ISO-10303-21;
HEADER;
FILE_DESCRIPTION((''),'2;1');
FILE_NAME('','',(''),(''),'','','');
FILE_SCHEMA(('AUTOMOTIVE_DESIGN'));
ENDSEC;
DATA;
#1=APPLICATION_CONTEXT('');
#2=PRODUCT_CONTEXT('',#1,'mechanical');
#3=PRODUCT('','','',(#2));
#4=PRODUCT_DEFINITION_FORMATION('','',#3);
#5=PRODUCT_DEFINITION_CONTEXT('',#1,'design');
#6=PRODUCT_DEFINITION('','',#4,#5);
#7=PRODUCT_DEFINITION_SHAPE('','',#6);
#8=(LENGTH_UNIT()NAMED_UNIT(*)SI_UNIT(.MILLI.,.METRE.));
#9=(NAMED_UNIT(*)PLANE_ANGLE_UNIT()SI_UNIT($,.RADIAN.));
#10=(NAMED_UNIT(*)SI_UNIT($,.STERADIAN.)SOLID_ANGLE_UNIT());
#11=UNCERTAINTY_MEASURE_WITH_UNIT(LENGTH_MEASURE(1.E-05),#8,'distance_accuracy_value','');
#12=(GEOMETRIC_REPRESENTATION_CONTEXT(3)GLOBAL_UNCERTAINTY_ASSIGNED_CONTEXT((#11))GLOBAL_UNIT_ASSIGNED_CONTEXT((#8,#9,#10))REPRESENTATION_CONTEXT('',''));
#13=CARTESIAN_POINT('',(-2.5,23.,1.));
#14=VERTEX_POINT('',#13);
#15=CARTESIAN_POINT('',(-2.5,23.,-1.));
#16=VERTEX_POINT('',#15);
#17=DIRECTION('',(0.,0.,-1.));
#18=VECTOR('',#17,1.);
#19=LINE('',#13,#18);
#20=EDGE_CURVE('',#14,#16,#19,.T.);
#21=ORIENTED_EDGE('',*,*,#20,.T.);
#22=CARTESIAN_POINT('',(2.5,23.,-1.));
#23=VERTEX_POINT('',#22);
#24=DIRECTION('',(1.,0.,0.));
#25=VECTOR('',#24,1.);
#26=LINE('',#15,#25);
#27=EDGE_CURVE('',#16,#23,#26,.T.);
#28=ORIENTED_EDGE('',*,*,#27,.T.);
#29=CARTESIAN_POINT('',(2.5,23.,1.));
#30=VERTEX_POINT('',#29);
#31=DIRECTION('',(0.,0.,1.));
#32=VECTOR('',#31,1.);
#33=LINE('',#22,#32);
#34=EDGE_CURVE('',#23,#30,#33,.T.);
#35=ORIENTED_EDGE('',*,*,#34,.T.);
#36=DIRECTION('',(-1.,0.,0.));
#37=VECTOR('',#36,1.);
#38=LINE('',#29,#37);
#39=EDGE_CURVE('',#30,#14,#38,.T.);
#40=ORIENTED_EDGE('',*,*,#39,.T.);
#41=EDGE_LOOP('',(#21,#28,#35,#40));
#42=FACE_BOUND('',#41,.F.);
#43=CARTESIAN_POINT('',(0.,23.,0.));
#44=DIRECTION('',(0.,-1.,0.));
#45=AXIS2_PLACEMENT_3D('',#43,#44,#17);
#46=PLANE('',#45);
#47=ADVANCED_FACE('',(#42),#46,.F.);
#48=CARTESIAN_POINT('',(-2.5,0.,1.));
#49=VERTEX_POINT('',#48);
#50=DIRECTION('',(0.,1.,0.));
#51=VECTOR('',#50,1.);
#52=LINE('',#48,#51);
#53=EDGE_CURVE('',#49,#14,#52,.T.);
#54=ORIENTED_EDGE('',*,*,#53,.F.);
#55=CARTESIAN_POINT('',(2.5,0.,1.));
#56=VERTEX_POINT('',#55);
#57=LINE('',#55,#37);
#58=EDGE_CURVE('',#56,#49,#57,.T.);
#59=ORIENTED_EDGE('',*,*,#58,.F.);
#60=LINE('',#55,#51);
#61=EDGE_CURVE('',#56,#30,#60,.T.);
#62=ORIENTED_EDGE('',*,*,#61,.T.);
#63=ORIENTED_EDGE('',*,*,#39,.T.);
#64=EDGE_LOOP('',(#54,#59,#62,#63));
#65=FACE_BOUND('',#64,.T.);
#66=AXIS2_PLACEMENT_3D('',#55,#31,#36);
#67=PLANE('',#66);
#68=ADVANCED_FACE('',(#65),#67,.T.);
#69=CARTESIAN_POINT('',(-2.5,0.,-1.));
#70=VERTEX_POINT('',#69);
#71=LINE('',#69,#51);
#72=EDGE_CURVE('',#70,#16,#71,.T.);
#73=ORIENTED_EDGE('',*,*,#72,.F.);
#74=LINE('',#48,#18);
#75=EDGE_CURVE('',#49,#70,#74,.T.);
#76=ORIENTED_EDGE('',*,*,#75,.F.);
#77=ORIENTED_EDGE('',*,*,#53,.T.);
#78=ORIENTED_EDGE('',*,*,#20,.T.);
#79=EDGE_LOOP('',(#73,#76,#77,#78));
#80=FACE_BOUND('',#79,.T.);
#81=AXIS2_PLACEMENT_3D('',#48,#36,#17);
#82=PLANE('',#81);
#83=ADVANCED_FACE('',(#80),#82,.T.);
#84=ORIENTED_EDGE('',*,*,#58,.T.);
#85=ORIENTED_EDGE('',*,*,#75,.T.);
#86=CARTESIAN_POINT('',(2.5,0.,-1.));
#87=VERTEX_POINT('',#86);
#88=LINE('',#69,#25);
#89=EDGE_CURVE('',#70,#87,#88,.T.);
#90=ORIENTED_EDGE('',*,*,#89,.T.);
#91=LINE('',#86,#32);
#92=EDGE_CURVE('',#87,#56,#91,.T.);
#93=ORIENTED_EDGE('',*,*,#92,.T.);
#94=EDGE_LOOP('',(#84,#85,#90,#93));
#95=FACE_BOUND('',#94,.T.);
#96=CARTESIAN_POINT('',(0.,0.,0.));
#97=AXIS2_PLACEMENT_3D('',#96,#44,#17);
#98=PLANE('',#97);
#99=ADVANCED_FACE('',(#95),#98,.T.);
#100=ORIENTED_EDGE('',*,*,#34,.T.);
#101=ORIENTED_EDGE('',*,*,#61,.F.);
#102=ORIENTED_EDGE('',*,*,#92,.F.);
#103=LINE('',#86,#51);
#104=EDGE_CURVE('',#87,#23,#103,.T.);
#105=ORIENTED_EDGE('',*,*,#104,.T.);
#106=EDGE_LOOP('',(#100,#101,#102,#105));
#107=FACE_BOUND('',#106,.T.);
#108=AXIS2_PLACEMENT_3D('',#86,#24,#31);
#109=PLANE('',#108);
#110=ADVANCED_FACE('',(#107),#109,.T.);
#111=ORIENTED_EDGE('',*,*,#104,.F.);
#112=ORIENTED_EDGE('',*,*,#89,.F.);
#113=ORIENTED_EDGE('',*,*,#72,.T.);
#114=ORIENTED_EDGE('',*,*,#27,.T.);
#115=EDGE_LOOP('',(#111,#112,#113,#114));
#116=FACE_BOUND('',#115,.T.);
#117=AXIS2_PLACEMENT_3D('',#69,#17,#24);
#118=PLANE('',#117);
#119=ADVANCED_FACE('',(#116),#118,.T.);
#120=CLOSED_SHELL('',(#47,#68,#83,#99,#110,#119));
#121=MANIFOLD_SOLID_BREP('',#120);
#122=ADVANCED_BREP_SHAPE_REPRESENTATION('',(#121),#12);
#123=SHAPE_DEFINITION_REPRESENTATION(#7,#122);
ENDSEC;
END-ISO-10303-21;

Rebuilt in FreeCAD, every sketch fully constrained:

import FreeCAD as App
import Part
import Sketcher
from FreeCAD import Vector


def add_polygon(sketch, points):
    """Adds a closed chain of lines whose ends are joined by coincident constraints."""
    first, n = sketch.GeometryCount, len(points)
    for a, b in zip(points, points[1:] + points[:1]):
        sketch.addGeometry(Part.LineSegment(App.Vector(*a, 0), App.Vector(*b, 0)), False)
    for i in range(n):
        sketch.addConstraint(Sketcher.Constraint("Coincident", first + i, 2, first + (i + 1) % n, 1))

doc = App.newDocument("Part")
params = doc.addObject("Spreadsheet::Sheet", "Params")
for row, (alias, value) in enumerate([
    ("sketch1_height", "2 mm"),
    ("pad1_length", "23 mm"),
], start=1):
    params.set(f"A{row}", alias)
    params.set(f"B{row}", "=" + value)
    params.setAlias(f"B{row}", alias)

body = doc.addObject("PartDesign::Body", "Body")

sketch1 = doc.addObject("Sketcher::SketchObject", "Sketch")
body.addObject(sketch1)
sketch1.AttachmentSupport = (doc.XZ_Plane, [""])
sketch1.MapMode = "FlatFace"
add_polygon(sketch1, [(-2.5, 1), (-2.5, -1), (2.5, -1), (2.5, 1)])
sketch1.addConstraint([
    Sketcher.Constraint("Vertical", 0),
    Sketcher.Constraint("Horizontal", 1),
    Sketcher.Constraint("Vertical", 2),
    Sketcher.Constraint("Horizontal", 3),
    Sketcher.Constraint("Symmetric", 0, 2, 2, 2, -1, 1),
    Sketcher.Constraint("DistanceX", 0, 2, -1, 1, 2.5),
    Sketcher.Constraint("DistanceY", 0, 2, 0, 1, 2.0),
])
sketch1.setExpression("Constraints[10]", "Params.sketch1_height")
pad1 = doc.addObject("PartDesign::Pad", "Pad")
body.addObject(pad1)
pad1.Profile = sketch1
pad1.setExpression("Length", "Params.pad1_length")
pad1.Reversed = True

doc.recompute()
